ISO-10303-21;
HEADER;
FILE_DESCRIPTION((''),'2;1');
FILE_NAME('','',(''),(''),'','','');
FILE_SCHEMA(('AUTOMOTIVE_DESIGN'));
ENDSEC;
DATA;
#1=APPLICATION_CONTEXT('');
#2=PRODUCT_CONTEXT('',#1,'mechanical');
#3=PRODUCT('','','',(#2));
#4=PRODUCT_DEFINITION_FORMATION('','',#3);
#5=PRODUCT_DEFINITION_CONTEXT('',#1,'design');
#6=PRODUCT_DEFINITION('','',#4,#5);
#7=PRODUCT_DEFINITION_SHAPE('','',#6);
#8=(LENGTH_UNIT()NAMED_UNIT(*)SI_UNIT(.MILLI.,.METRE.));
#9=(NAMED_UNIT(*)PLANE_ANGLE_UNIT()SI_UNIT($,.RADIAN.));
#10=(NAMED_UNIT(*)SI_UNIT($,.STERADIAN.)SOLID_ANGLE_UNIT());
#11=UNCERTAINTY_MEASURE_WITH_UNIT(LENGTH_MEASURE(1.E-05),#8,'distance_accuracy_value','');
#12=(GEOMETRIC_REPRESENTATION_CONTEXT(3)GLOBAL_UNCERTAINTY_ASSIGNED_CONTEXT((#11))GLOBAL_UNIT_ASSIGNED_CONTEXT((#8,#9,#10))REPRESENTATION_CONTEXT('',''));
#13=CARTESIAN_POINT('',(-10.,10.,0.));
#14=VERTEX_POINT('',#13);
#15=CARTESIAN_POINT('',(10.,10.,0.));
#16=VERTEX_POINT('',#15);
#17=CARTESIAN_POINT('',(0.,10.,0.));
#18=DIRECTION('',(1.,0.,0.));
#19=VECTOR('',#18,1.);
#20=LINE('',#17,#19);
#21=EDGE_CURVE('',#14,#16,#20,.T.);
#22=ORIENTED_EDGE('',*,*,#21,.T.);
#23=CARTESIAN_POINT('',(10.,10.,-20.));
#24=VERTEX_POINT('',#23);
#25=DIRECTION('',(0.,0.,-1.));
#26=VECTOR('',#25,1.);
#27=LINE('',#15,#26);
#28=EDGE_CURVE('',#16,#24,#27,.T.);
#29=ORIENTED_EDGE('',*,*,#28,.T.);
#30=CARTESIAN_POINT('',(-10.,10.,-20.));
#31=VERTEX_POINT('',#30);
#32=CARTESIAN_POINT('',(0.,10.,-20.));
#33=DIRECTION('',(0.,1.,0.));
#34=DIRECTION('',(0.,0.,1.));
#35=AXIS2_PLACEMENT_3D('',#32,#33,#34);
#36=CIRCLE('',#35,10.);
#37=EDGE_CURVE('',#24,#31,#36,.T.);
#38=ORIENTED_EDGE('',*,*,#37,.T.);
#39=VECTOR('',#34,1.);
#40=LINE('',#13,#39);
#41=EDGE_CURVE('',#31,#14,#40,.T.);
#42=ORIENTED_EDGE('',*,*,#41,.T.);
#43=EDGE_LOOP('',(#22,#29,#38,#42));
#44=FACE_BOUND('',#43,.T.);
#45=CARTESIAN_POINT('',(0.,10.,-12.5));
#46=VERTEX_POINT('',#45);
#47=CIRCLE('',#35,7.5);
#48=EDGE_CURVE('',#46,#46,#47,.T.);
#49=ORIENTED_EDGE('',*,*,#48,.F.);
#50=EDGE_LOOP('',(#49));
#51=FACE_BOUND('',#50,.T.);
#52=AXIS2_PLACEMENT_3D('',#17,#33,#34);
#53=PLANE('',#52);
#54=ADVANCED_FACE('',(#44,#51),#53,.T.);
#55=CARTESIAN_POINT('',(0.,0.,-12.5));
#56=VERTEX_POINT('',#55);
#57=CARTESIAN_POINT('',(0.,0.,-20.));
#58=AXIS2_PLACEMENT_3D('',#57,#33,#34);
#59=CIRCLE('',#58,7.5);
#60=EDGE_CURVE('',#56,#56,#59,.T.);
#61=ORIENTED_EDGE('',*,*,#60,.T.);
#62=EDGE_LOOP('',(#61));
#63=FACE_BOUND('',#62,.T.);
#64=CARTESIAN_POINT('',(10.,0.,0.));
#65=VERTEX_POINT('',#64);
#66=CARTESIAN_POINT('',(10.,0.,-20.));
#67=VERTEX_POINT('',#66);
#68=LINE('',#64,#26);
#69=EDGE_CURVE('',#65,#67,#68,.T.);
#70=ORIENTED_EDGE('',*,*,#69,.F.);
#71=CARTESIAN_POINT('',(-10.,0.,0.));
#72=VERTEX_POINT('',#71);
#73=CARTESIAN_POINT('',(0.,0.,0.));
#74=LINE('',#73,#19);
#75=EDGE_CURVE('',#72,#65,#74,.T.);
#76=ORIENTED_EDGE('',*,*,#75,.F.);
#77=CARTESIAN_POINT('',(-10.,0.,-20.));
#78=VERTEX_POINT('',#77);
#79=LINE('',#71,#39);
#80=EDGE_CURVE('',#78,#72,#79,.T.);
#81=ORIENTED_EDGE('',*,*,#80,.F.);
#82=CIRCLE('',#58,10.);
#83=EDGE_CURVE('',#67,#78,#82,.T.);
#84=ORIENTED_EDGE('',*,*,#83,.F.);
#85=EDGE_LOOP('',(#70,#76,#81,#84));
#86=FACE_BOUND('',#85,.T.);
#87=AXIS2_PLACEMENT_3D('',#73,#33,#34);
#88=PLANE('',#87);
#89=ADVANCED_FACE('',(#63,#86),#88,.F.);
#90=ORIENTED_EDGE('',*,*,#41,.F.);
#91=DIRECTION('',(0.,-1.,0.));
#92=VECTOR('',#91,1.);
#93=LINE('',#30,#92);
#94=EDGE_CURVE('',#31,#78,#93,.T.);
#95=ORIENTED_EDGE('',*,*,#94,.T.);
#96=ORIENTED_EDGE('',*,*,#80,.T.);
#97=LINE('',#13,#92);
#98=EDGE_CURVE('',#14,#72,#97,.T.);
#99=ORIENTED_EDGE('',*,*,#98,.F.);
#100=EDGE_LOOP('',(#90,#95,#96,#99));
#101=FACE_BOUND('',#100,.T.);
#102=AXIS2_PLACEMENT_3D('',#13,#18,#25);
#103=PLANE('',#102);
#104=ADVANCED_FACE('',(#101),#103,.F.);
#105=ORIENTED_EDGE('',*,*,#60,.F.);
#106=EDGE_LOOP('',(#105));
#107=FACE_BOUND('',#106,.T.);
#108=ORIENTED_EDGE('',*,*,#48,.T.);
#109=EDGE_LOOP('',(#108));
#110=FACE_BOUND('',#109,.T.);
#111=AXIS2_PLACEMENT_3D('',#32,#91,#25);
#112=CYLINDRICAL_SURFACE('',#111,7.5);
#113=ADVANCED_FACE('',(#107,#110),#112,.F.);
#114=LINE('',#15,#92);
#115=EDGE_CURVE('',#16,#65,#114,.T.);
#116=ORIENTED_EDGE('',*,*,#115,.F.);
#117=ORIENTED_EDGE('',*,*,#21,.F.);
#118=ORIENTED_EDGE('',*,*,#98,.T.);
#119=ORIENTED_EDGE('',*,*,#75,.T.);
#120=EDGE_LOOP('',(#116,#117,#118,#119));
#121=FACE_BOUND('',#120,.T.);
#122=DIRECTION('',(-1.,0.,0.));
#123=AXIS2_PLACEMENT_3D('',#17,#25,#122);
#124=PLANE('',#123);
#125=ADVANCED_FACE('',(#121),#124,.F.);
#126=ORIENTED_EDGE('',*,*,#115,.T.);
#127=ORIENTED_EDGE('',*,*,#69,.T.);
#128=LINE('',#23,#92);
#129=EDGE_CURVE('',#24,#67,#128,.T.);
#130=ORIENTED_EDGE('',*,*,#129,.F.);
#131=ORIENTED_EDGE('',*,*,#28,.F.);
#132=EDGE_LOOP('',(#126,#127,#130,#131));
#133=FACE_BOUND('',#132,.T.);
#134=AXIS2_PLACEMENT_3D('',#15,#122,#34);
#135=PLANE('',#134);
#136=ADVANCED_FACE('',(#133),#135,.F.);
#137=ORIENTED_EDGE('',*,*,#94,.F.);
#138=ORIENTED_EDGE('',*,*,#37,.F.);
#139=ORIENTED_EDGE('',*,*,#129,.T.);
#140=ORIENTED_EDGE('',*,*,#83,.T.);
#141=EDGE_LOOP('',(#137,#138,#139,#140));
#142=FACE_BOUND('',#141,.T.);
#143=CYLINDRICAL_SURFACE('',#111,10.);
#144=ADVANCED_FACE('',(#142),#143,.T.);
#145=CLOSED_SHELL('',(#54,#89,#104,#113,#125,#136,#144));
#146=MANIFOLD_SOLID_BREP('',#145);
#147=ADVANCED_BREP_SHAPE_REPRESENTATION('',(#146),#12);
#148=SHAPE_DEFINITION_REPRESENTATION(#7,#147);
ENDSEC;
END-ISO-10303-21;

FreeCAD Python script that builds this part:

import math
import FreeCAD as App
import Part
import Sketcher
from FreeCAD import Vector
Q = App.Units.Quantity

doc = App.newDocument("Part")
body = doc.addObject("PartDesign::Body", "Body")

# Sketch on XZ plane
sketch1 = body.newObject("Sketcher::SketchObject", "Sketch")
sketch1.AttachmentSupport = (doc.getObject("XZ_Plane"), [""])
sketch1.MapMode = "FlatFace"
sketch1.addGeometry(Part.LineSegment(Vector(-10, 0, 0), Vector(10, 0, 0)), False)
sketch1.addGeometry(Part.LineSegment(Vector(10, 0, 0), Vector(10, -20, 0)), False)
sketch1.addGeometry(Part.ArcOfCircle(Part.Circle(Vector(0, -20, 0), Vector(0, 0, 1), 10), math.radians(180), math.radians(360)), False)
sketch1.addGeometry(Part.LineSegment(Vector(-10, -20, 0), Vector(-10, 0, 0)), False)
sketch1.addGeometry(Part.Circle(Vector(0, -20, 0), Vector(0, 0, 1), 8), False)
sketch1.addConstraint(Sketcher.Constraint("Coincident", 0, 2, 1, 1))
sketch1.addConstraint(Sketcher.Constraint("Tangent", 1, 2, 2, 2))
sketch1.addConstraint(Sketcher.Constraint("Tangent", 2, 1, 3, 1))
sketch1.addConstraint(Sketcher.Constraint("Coincident", 3, 2, 0, 1))
sketch1.addConstraint(Sketcher.Constraint("Horizontal", 0))
sketch1.addConstraint(Sketcher.Constraint("Vertical", 1))
sketch1.addConstraint(Sketcher.Constraint("Vertical", 3))
sketch1.addConstraint(Sketcher.Constraint("Coincident", 4, 3, 2, 3))
sketch1.addConstraint(Sketcher.Constraint("Symmetric", 0, 2, 3, 2, -1, 1))
sketch1.addConstraint(Sketcher.Constraint("Equal", 0, 1))
sketch1.addConstraint(Sketcher.Constraint("Diameter", 4, Q("15 mm")))
sketch1.addConstraint(Sketcher.Constraint("Radius", 2, Q("10 mm")))
pad1 = body.newObject("PartDesign::Pad", "Pad")
pad1.Profile = sketch1
pad1.Length = 10
pad1.Reversed = True

doc.recompute()
